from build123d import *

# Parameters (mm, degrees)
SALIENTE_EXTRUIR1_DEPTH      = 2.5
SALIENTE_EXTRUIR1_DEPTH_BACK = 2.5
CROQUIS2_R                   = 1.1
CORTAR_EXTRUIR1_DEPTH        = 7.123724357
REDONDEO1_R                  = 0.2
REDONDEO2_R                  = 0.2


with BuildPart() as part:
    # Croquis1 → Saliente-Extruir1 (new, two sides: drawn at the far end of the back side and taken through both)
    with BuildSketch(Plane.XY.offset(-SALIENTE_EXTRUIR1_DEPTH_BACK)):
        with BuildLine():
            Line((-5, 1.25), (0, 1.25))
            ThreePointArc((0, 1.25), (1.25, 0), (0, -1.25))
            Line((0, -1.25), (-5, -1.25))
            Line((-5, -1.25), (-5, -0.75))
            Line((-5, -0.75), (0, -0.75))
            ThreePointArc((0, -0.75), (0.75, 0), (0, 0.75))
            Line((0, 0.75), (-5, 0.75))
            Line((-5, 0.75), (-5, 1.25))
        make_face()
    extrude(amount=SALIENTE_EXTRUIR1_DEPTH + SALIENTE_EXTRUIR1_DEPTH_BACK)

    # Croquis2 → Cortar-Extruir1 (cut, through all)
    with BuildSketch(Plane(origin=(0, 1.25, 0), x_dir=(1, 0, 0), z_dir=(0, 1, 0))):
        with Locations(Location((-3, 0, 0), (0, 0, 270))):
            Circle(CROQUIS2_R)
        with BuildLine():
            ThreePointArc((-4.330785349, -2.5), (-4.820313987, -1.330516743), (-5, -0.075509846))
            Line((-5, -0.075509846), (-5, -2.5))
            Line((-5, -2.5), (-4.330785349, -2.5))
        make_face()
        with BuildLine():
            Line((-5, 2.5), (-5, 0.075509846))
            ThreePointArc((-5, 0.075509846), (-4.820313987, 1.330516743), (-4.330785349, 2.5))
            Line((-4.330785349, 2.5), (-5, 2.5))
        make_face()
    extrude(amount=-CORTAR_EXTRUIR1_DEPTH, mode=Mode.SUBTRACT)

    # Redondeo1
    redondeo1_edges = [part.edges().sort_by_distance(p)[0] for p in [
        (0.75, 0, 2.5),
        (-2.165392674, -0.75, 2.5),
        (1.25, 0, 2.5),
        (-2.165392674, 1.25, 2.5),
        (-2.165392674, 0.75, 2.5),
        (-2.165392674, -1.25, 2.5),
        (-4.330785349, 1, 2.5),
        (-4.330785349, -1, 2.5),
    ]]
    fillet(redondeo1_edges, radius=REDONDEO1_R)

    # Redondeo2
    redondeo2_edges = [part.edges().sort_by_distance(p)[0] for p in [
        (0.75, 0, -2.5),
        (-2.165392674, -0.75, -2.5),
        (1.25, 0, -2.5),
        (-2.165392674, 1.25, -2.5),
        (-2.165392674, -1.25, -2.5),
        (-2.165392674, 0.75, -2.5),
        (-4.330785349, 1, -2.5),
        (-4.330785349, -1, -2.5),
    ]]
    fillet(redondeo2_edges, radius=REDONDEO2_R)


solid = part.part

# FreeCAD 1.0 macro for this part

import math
import FreeCAD as App
import Part
import Sketcher

V = App.Vector


def edges_at(feature, points):
    """Names of the edges that pass closest to the given points."""
    edges = feature.Shape.Edges
    near = lambda p: min(range(len(edges)), key=lambda i: edges[i].distToShape(Part.Vertex(*p))[0])
    return sorted({f"Edge{near(p) + 1}" for p in points})

doc = App.newDocument("Part")
body = doc.addObject("PartDesign::Body", "Body")

sketch1 = doc.addObject("Sketcher::SketchObject", "Sketch")
body.addObject(sketch1)
sketch1.AttachmentSupport = (doc.XY_Plane, [""])
sketch1.MapMode = "FlatFace"
sketch1.addGeometry([
    Part.LineSegment(V(0, 1.2, 0), V(-5, 1.2, 0)),
    Part.LineSegment(V(-5, 1.2, 0), V(-5, 0.8, 0)),
    Part.LineSegment(V(-5, 0.8, 0), V(0, 0.8, 0)),
    Part.ArcOfCircle(Part.Circle(V(0, 0, 0), V(0, 0, 1), 0.8), math.radians(-90), math.radians(90)),
    Part.LineSegment(V(0, -0.8, 0), V(-5, -0.8, 0)),
    Part.LineSegment(V(-5, -0.8, 0), V(-5, -1.2, 0)),
    Part.LineSegment(V(-5, -1.2, 0), V(0, -1.2, 0)),
    Part.ArcOfCircle(Part.Circle(V(0, 0, 0), V(0, 0, 1), 1.2), math.radians(-90), math.radians(90)),
], False)
sketch1.addConstraint([
    Sketcher.Constraint("Coincident", 0, 2, 1, 1),
    Sketcher.Constraint("Coincident", 1, 2, 2, 1),
    Sketcher.Constraint("Tangent", 2, 2, 3, 2),
    Sketcher.Constraint("Tangent", 3, 1, 4, 1),
    Sketcher.Constraint("Coincident", 4, 2, 5, 1),
    Sketcher.Constraint("Coincident", 5, 2, 6, 1),
    Sketcher.Constraint("Tangent", 6, 2, 7, 1),
    Sketcher.Constraint("Tangent", 7, 2, 0, 1),
    Sketcher.Constraint("Horizontal", 0),
    Sketcher.Constraint("Vertical", 1),
    Sketcher.Constraint("Horizontal", 2),
    Sketcher.Constraint("Horizontal", 4),
    Sketcher.Constraint("Vertical", 5),
    Sketcher.Constraint("Horizontal", 6),
    Sketcher.Constraint("Coincident", 3, 3, -1, 1),
    Sketcher.Constraint("Coincident", 7, 3, -1, 1),
    Sketcher.Constraint("Vertical", 1, 2, 4, 2),
    Sketcher.Constraint("DistanceX", 0, 2, 0, 1, 5.0),
    Sketcher.Constraint("Radius", 3, 0.75),
    Sketcher.Constraint("Radius", 7, 1.25),
])
pad1 = doc.addObject("PartDesign::Pad", "Pad")
body.addObject(pad1)
pad1.Profile = sketch1
pad1.Type = "TwoLengths"
pad1.Length = 2.5
pad1.Length2 = 2.5

sketch2 = doc.addObject("Sketcher::SketchObject", "Sketch001")
body.addObject(sketch2)
sketch2.AttachmentSupport = (doc.XZ_Plane, [""])
sketch2.MapMode = "FlatFace"
sketch2.AttachmentOffset = App.Placement(V(0, 0, -1.25), App.Rotation())
sketch2.addGeometry([
    Part.Circle(V(-3, 0, 0), V(0, 0, 1), 1.1),
    Part.ArcOfCircle(Part.Circle(V(0, 0, 0), V(0, 0, 1), 5), math.radians(150), math.radians(179)),
    Part.LineSegment(V(-5, 0.1, 0), V(-5, 2.5, 0)),
    Part.LineSegment(V(-5, 2.5, 0), V(-4.3, 2.5, 0)),
    Part.LineSegment(V(-5, -2.5, 0), V(-5, -0.1, 0)),
    Part.ArcOfCircle(Part.Circle(V(0, 0, 0), V(0, 0, 1), 5), math.radians(-179), math.radians(-150)),
    Part.LineSegment(V(-4.3, -2.5, 0), V(-5, -2.5, 0)),
], False)
sketch2.addConstraint([
    Sketcher.Constraint("Coincident", 1, 2, 2, 1),
    Sketcher.Constraint("Coincident", 2, 2, 3, 1),
    Sketcher.Constraint("Coincident", 3, 2, 1, 1),
    Sketcher.Constraint("Coincident", 4, 2, 5, 1),
    Sketcher.Constraint("Coincident", 5, 2, 6, 1),
    Sketcher.Constraint("Coincident", 6, 2, 4, 1),
    Sketcher.Constraint("Vertical", 2),
    Sketcher.Constraint("Horizontal", 3),
    Sketcher.Constraint("Vertical", 4),
    Sketcher.Constraint("Horizontal", 6),
    Sketcher.Constraint("Coincident", 1, 3, -1, 1),
    Sketcher.Constraint("Coincident", 5, 3, -1, 1),
    Sketcher.Constraint("Equal", 1, 5),
    Sketcher.Constraint("Symmetric", 2, 2, 6, 2, -1),
    Sketcher.Constraint("PointOnObject", 0, 3, -1),
    Sketcher.Constraint("Diameter", 0, 2.2),
    Sketcher.Constraint("DistanceX", 0, 3, -1, 1, 3.0),
    Sketcher.Constraint("DistanceX", 1, 2, -1, 1, 5.0),
    Sketcher.Constraint("DistanceY", 5, 2, 3, 2, 5.0),
    Sketcher.Constraint("Radius", 1, 5.00057),
])
pocket1 = doc.addObject("PartDesign::Pocket", "Pocket")
body.addObject(pocket1)
pocket1.Profile = sketch2
pocket1.Type = "ThroughAll"
pocket1.Reversed = True
doc.recompute()

fillet = doc.addObject("PartDesign::Fillet", "Fillet")
body.addObject(fillet)
fillet.Base = (pocket1, edges_at(pocket1, [
    (0.75, 0, 2.5),
    (-2.165, -0.75, 2.5),
    (1.25, 0, 2.5),
    (-2.165, 1.25, 2.5),
    (-2.165, 0.75, 2.5),
    (-2.165, -1.25, 2.5),
    (-4.331, 1, 2.5),
    (-4.331, -1, 2.5),
]))
fillet.Radius = 0.2
doc.recompute()

fillet2 = doc.addObject("PartDesign::Fillet", "Fillet001")
body.addObject(fillet2)
fillet2.Base = (fillet, edges_at(fillet, [
    (0.75, 0, -2.5),
    (-2.165, -0.75, -2.5),
    (1.25, 0, -2.5),
    (-2.165, 1.25, -2.5),
    (-2.165, -1.25, -2.5),
    (-2.165, 0.75, -2.5),
    (-4.331, 1, -2.5),
    (-4.331, -1, -2.5),
]))
fillet2.Radius = 0.2

doc.recompute()
